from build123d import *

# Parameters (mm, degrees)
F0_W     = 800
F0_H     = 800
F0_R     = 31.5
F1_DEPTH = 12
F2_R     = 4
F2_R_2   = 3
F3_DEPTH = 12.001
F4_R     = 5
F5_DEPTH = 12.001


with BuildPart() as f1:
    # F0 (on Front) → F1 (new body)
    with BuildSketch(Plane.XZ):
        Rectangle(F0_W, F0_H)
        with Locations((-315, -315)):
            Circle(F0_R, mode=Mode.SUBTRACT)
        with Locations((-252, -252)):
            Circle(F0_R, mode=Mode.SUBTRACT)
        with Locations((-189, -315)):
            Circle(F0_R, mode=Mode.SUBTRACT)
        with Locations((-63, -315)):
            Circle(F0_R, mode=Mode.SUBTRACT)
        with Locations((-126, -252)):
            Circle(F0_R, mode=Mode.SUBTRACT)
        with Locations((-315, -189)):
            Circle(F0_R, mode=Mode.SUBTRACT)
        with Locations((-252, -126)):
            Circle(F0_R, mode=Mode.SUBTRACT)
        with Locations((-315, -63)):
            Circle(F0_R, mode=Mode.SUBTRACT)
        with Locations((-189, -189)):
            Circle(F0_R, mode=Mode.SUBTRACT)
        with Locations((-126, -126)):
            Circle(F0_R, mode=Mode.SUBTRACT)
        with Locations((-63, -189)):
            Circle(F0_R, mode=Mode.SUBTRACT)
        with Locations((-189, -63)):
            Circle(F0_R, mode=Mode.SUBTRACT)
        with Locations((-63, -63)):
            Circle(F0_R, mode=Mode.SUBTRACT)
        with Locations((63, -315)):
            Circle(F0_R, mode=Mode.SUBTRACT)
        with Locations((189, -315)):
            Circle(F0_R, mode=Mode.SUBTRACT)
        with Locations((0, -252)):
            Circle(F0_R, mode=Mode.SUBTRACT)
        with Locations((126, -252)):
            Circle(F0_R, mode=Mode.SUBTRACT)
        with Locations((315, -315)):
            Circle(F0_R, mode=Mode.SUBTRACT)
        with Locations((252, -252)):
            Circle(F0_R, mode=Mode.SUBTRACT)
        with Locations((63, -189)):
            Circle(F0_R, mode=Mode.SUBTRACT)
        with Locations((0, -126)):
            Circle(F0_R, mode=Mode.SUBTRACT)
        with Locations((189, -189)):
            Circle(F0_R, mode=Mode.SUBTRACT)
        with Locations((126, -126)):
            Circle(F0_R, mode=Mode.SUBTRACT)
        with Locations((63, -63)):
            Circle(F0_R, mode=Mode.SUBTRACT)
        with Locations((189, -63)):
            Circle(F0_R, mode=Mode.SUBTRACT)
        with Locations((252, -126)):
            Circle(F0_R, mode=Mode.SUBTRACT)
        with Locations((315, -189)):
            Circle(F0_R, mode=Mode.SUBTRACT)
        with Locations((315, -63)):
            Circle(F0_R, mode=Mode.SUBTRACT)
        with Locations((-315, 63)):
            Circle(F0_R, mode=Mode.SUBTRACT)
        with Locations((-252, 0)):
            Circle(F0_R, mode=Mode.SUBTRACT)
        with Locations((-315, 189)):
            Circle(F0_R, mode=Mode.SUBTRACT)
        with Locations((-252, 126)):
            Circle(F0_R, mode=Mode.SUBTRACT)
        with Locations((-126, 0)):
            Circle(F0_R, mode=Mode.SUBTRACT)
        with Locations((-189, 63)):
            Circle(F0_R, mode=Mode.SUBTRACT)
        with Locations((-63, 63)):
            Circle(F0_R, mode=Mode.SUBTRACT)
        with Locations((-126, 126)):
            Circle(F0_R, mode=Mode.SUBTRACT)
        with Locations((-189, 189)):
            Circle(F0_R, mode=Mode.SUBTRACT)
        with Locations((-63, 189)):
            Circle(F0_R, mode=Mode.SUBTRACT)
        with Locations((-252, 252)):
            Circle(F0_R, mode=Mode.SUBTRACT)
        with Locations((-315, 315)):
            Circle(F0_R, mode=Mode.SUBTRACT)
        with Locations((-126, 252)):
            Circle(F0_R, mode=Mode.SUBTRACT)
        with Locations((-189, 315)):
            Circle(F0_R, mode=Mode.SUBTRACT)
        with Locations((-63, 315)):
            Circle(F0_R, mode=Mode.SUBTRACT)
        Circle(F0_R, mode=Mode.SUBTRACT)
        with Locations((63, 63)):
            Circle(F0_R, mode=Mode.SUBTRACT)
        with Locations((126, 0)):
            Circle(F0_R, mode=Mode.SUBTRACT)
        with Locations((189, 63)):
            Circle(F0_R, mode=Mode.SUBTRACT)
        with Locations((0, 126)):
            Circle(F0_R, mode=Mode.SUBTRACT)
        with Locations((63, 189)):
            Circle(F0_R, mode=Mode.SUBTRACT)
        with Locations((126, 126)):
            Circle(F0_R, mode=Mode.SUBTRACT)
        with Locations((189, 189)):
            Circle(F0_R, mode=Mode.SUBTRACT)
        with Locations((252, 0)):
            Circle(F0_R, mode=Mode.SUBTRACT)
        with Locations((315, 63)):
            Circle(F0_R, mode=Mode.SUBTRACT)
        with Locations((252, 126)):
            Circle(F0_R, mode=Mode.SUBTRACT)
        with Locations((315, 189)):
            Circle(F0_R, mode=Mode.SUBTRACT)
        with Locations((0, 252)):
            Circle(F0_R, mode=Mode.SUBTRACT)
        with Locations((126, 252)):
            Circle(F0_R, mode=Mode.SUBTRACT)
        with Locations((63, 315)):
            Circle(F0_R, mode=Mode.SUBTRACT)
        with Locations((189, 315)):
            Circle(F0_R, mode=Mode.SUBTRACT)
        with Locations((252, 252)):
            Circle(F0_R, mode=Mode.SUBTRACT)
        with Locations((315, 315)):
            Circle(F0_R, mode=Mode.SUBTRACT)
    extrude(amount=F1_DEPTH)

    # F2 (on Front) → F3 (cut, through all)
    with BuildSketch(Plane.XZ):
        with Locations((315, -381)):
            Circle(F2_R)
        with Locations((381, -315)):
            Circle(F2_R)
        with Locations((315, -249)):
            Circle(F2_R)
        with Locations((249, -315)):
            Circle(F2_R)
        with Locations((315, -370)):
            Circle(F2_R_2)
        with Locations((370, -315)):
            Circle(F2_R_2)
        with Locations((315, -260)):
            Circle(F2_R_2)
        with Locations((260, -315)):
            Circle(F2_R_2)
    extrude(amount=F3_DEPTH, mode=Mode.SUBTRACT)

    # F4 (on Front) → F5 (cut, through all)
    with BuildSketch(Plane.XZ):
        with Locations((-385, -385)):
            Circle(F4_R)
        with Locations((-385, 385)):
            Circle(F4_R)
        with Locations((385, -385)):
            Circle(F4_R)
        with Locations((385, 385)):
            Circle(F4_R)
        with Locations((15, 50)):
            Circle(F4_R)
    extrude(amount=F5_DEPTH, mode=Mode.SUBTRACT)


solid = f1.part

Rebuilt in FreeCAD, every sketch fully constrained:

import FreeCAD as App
import Part
import Sketcher

V = App.Vector

doc = App.newDocument("Part")
body = doc.addObject("PartDesign::Body", "Body")

# Sketch on XZ plane
sketch1 = doc.addObject("Sketcher::SketchObject", "Sketch")
body.addObject(sketch1)
sketch1.AttachmentSupport = (doc.XZ_Plane, [""])
sketch1.MapMode = "FlatFace"
sketch1.addGeometry([
    Part.LineSegment(V(-400, 400, 0), V(-400, -400, 0)),  # 0
    Part.LineSegment(V(-400, -400, 0), V(400, -400, 0)),  # 1
    Part.LineSegment(V(400, -400, 0), V(400, 400, 0)),  # 2
    Part.LineSegment(V(400, 400, 0), V(-400, 400, 0)),  # 3
    Part.Circle(V(-315, -315, 0), V(0, 0, 1), 32),  # 4
    Part.Circle(V(-189, -315, 0), V(0, 0, 1), 32),  # 5
    Part.Circle(V(-315, -189, 0), V(0, 0, 1), 32),  # 6
    Part.Circle(V(-252, -252, 0), V(0, 0, 1), 32),  # 7
    Part.Circle(V(-189, -189, 0), V(0, 0, 1), 32),  # 8
    Part.Circle(V(-63, -315, 0), V(0, 0, 1), 32),  # 9
    Part.Circle(V(-126, -252, 0), V(0, 0, 1), 32),  # 10
    Part.Circle(V(-63, -189, 0), V(0, 0, 1), 32),  # 11
    Part.Circle(V(-252, -126, 0), V(0, 0, 1), 32),  # 12
    Part.Circle(V(-315, -63, 0), V(0, 0, 1), 32),  # 13
    Part.Circle(V(-189, -63, 0), V(0, 0, 1), 32),  # 14
    Part.Circle(V(-126, -126, 0), V(0, 0, 1), 32),  # 15
    Part.Circle(V(-63, -63, 0), V(0, 0, 1), 32),  # 16
    Part.Circle(V(63, -315, 0), V(0, 0, 1), 32),  # 17
    Part.Circle(V(0, -252, 0), V(0, 0, 1), 32),  # 18
    Part.Circle(V(63, -189, 0), V(0, 0, 1), 32),  # 19
    Part.Circle(V(126, -252, 0), V(0, 0, 1), 32),  # 20
    Part.Circle(V(189, -315, 0), V(0, 0, 1), 32),  # 21
    Part.Circle(V(315, -315, 0), V(0, 0, 1), 32),  # 22
    Part.Circle(V(252, -252, 0), V(0, 0, 1), 32),  # 23
    Part.Circle(V(189, -189, 0), V(0, 0, 1), 32),  # 24
    Part.Circle(V(315, -189, 0), V(0, 0, 1), 32),  # 25
    Part.Circle(V(0, -126, 0), V(0, 0, 1), 32),  # 26
    Part.Circle(V(126, -126, 0), V(0, 0, 1), 32),  # 27
    Part.Circle(V(63, -63, 0), V(0, 0, 1), 32),  # 28
    Part.Circle(V(252, -126, 0), V(0, 0, 1), 32),  # 29
    Part.Circle(V(189, -63, 0), V(0, 0, 1), 32),  # 30
    Part.Circle(V(315, -63, 0), V(0, 0, 1), 32),  # 31
    Part.Circle(V(-315, 63, 0), V(0, 0, 1), 32),  # 32
    Part.Circle(V(-252, 0, 0), V(0, 0, 1), 32),  # 33
    Part.Circle(V(-189, 63, 0), V(0, 0, 1), 32),  # 34
    Part.Circle(V(-252, 126, 0), V(0, 0, 1), 32),  # 35
    Part.Circle(V(-126, 0, 0), V(0, 0, 1), 32),  # 36
    Part.Circle(V(-63, 63, 0), V(0, 0, 1), 32),  # 37
    Part.Circle(V(-126, 126, 0), V(0, 0, 1), 32),  # 38
    Part.Circle(V(-315, 189, 0), V(0, 0, 1), 32),  # 39
    Part.Circle(V(-189, 189, 0), V(0, 0, 1), 32),  # 40
    Part.Circle(V(-252, 252, 0), V(0, 0, 1), 32),  # 41
    Part.Circle(V(-315, 315, 0), V(0, 0, 1), 32),  # 42
    Part.Circle(V(-189, 315, 0), V(0, 0, 1), 32),  # 43
    Part.Circle(V(-126, 252, 0), V(0, 0, 1), 32),  # 44
    Part.Circle(V(-63, 189, 0), V(0, 0, 1), 32),  # 45
    Part.Circle(V(-63, 315, 0), V(0, 0, 1), 32),  # 46
    Part.Circle(V(0, 0, 0), V(0, 0, 1), 32),  # 47
    Part.Circle(V(63, 63, 0), V(0, 0, 1), 32),  # 48
    Part.Circle(V(126, 0, 0), V(0, 0, 1), 32),  # 49
    Part.Circle(V(0, 126, 0), V(0, 0, 1), 32),  # 50
    Part.Circle(V(126, 126, 0), V(0, 0, 1), 32),  # 51
    Part.Circle(V(252, 0, 0), V(0, 0, 1), 32),  # 52
    Part.Circle(V(189, 63, 0), V(0, 0, 1), 32),  # 53
    Part.Circle(V(315, 63, 0), V(0, 0, 1), 32),  # 54
    Part.Circle(V(252, 126, 0), V(0, 0, 1), 32),  # 55
    Part.Circle(V(63, 189, 0), V(0, 0, 1), 32),  # 56
    Part.Circle(V(0, 252, 0), V(0, 0, 1), 32),  # 57
    Part.Circle(V(126, 252, 0), V(0, 0, 1), 32),  # 58
    Part.Circle(V(63, 315, 0), V(0, 0, 1), 32),  # 59
    Part.Circle(V(189, 189, 0), V(0, 0, 1), 32),  # 60
    Part.Circle(V(252, 252, 0), V(0, 0, 1), 32),  # 61
    Part.Circle(V(315, 189, 0), V(0, 0, 1), 32),  # 62
    Part.Circle(V(189, 315, 0), V(0, 0, 1), 32),  # 63
    Part.Circle(V(315, 315, 0), V(0, 0, 1), 32),  # 64
], False)
sketch1.addConstraint([
    Sketcher.Constraint("Coincident", 0, 2, 1, 1),
    Sketcher.Constraint("Coincident", 1, 2, 2, 1),
    Sketcher.Constraint("Coincident", 2, 2, 3, 1),
    Sketcher.Constraint("Coincident", 3, 2, 0, 1),
    Sketcher.Constraint("Vertical", 0),
    Sketcher.Constraint("Horizontal", 1),
    Sketcher.Constraint("Vertical", 2),
    Sketcher.Constraint("Horizontal", 3),
    Sketcher.Constraint("Coincident", 47, 3, -1, 1),
    Sketcher.Constraint("Equal", 4, 5),
    Sketcher.Constraint("Equal", 5, 6),
    Sketcher.Constraint("Equal", 6, 7),
    Sketcher.Constraint("Equal", 7, 8),
    Sketcher.Constraint("Equal", 8, 9),
    Sketcher.Constraint("Equal", 9, 10),
    Sketcher.Constraint("Equal", 10, 11),
    Sketcher.Constraint("Equal", 11, 12),
    Sketcher.Constraint("Equal", 12, 13),
    Sketcher.Constraint("Equal", 13, 14),
    Sketcher.Constraint("Equal", 14, 15),
    Sketcher.Constraint("Equal", 15, 16),
    Sketcher.Constraint("Equal", 16, 17),
    Sketcher.Constraint("Equal", 17, 18),
    Sketcher.Constraint("Equal", 18, 19),
    Sketcher.Constraint("Equal", 19, 20),
    Sketcher.Constraint("Equal", 20, 21),
    Sketcher.Constraint("Equal", 21, 22),
    Sketcher.Constraint("Equal", 22, 23),
    Sketcher.Constraint("Equal", 23, 24),
    Sketcher.Constraint("Equal", 24, 25),
    Sketcher.Constraint("Equal", 25, 26),
    Sketcher.Constraint("Equal", 26, 27),
    Sketcher.Constraint("Equal", 27, 28),
    Sketcher.Constraint("Equal", 28, 29),
    Sketcher.Constraint("Equal", 29, 30),
    Sketcher.Constraint("Equal", 30, 31),
    Sketcher.Constraint("Equal", 31, 32),
    Sketcher.Constraint("Equal", 32, 33),
    Sketcher.Constraint("Equal", 33, 34),
    Sketcher.Constraint("Equal", 34, 35),
    Sketcher.Constraint("Equal", 35, 36),
    Sketcher.Constraint("Equal", 36, 37),
    Sketcher.Constraint("Equal", 37, 38),
    Sketcher.Constraint("Equal", 38, 39),
    Sketcher.Constraint("Equal", 39, 40),
    Sketcher.Constraint("Equal", 40, 41),
    Sketcher.Constraint("Equal", 41, 42),
    Sketcher.Constraint("Equal", 42, 43),
    Sketcher.Constraint("Equal", 43, 44),
    Sketcher.Constraint("Equal", 44, 45),
    Sketcher.Constraint("Equal", 45, 46),
    Sketcher.Constraint("Equal", 46, 47),
    Sketcher.Constraint("Equal", 47, 48),
    Sketcher.Constraint("Equal", 48, 49),
    Sketcher.Constraint("Equal", 49, 50),
    Sketcher.Constraint("Equal", 50, 51),
    Sketcher.Constraint("Equal", 51, 52),
    Sketcher.Constraint("Equal", 52, 53),
    Sketcher.Constraint("Equal", 53, 54),
    Sketcher.Constraint("Equal", 54, 55),
    Sketcher.Constraint("Equal", 55, 56),
    Sketcher.Constraint("Equal", 56, 57),
    Sketcher.Constraint("Equal", 57, 58),
    Sketcher.Constraint("Equal", 58, 59),
    Sketcher.Constraint("Equal", 59, 60),
    Sketcher.Constraint("Equal", 60, 61),
    Sketcher.Constraint("Equal", 61, 62),
    Sketcher.Constraint("Equal", 62, 63),
    Sketcher.Constraint("Equal", 63, 64),
    Sketcher.Constraint("Symmetric", 31, 3, 32, 3, -1, 1),
    Sketcher.Constraint("Symmetric", 30, 3, 34, 3, -1, 1),
    Sketcher.Constraint("Symmetric", 29, 3, 35, 3, -1, 1),
    Sketcher.Constraint("Symmetric", 28, 3, 37, 3, -1, 1),
    Sketcher.Constraint("Symmetric", 27, 3, 38, 3, -1, 1),
    Sketcher.Constraint("Symmetric", 25, 3, 39, 3, -1, 1),
    Sketcher.Constraint("Symmetric", 24, 3, 40, 3, -1, 1),
    Sketcher.Constraint("Symmetric", 23, 3, 41, 3, -1, 1),
    Sketcher.Constraint("Symmetric", 22, 3, 42, 3, -1, 1),
    Sketcher.Constraint("Symmetric", 21, 3, 43, 3, -1, 1),
    Sketcher.Constraint("Symmetric", 20, 3, 44, 3, -1, 1),
    Sketcher.Constraint("Symmetric", 19, 3, 45, 3, -1, 1),
    Sketcher.Constraint("Symmetric", 17, 3, 46, 3, -1, 1),
    Sketcher.Constraint("Symmetric", 16, 3, 48, 3, -1, 1),
    Sketcher.Constraint("Symmetric", 36, 3, 49, 3, -1, 1),
    Sketcher.Constraint("Symmetric", 26, 3, 50, 3, -1, 1),
    Sketcher.Constraint("Symmetric", 15, 3, 51, 3, -1, 1),
    Sketcher.Constraint("Symmetric", 33, 3, 52, 3, -1, 1),
    Sketcher.Constraint("Symmetric", 14, 3, 53, 3, -1, 1),
    Sketcher.Constraint("Symmetric", 13, 3, 54, 3, -1, 1),
    Sketcher.Constraint("Symmetric", 12, 3, 55, 3, -1, 1),
    Sketcher.Constraint("Symmetric", 11, 3, 56, 3, -1, 1),
    Sketcher.Constraint("Symmetric", 18, 3, 57, 3, -1, 1),
    Sketcher.Constraint("Symmetric", 10, 3, 58, 3, -1, 1),
    Sketcher.Constraint("Symmetric", 9, 3, 59, 3, -1, 1),
    Sketcher.Constraint("Symmetric", 8, 3, 60, 3, -1, 1),
    Sketcher.Constraint("Symmetric", 7, 3, 61, 3, -1, 1),
    Sketcher.Constraint("Symmetric", 6, 3, 62, 3, -1, 1),
    Sketcher.Constraint("Symmetric", 5, 3, 63, 3, -1, 1),
    Sketcher.Constraint("Symmetric", 4, 3, 64, 3, -1, 1),
    Sketcher.Constraint("Symmetric", 0, 2, 2, 2, -1, 1),
    Sketcher.Constraint("Symmetric", 9, 3, 17, 3, -2),
    Sketcher.Constraint("Symmetric", 11, 3, 19, 3, -2),
    Sketcher.Constraint("Symmetric", 10, 3, 20, 3, -2),
    Sketcher.Constraint("Symmetric", 5, 3, 21, 3, -2),
    Sketcher.Constraint("Symmetric", 4, 3, 22, 3, -2),
    Sketcher.Constraint("Symmetric", 7, 3, 23, 3, -2),
    Sketcher.Constraint("Symmetric", 8, 3, 24, 3, -2),
    Sketcher.Constraint("Symmetric", 6, 3, 25, 3, -2),
    Sketcher.Constraint("Symmetric", 15, 3, 27, 3, -2),
    Sketcher.Constraint("Symmetric", 16, 3, 28, 3, -2),
    Sketcher.Constraint("Symmetric", 12, 3, 29, 3, -2),
    Sketcher.Constraint("Symmetric", 14, 3, 30, 3, -2),
    Sketcher.Constraint("Symmetric", 13, 3, 31, 3, -2),
    Sketcher.Constraint("PointOnObject", 18, 3, -2),
    Sketcher.Constraint("PointOnObject", 26, 3, -2),
    Sketcher.Constraint("PointOnObject", 33, 3, -1),
    Sketcher.Constraint("PointOnObject", 36, 3, -1),
    Sketcher.Constraint("Horizontal", 4, 3, 5, 3),
    Sketcher.Constraint("Horizontal", 6, 3, 8, 3),
    Sketcher.Constraint("Horizontal", 5, 3, 9, 3),
    Sketcher.Constraint("Horizontal", 7, 3, 10, 3),
    Sketcher.Constraint("Horizontal", 8, 3, 11, 3),
    Sketcher.Constraint("Horizontal", 13, 3, 14, 3),
    Sketcher.Constraint("Horizontal", 12, 3, 15, 3),
    Sketcher.Constraint("Horizontal", 14, 3, 16, 3),
    Sketcher.Constraint("Horizontal", 10, 3, 18, 3),
    Sketcher.Constraint("Horizontal", 15, 3, 26, 3),
    Sketcher.Constraint("Vertical", 4, 3, 6, 3),
    Sketcher.Constraint("Vertical", 5, 3, 8, 3),
    Sketcher.Constraint("Vertical", 9, 3, 11, 3),
    Sketcher.Constraint("Vertical", 7, 3, 12, 3),
    Sketcher.Constraint("Vertical", 6, 3, 13, 3),
    Sketcher.Constraint("Vertical", 8, 3, 14, 3),
    Sketcher.Constraint("Vertical", 10, 3, 15, 3),
    Sketcher.Constraint("Vertical", 11, 3, 16, 3),
    Sketcher.Constraint("Vertical", 12, 3, 33, 3),
    Sketcher.Constraint("Vertical", 15, 3, 36, 3),
    Sketcher.Constraint("Equal", 3, 0),
    Sketcher.Constraint("Diameter", 4, 63.0),
    Sketcher.Constraint("DistanceX", 1, 1, 1, 2, 800.0),
    Sketcher.Constraint("DistanceX", 4, 3, -1, 1, 315.0),
    Sketcher.Constraint("DistanceY", 4, 3, -1, 1, 315.0),
    Sketcher.Constraint("DistanceX", 5, 3, -1, 1, 189.0),
    Sketcher.Constraint("DistanceY", 6, 3, -1, 1, 189.0),
    Sketcher.Constraint("DistanceX", 7, 3, -1, 1, 252.0),
    Sketcher.Constraint("DistanceY", 7, 3, -1, 1, 252.0),
    Sketcher.Constraint("DistanceX", 9, 3, -1, 1, 63.0),
    Sketcher.Constraint("DistanceX", 10, 3, -1, 1, 126.0),
    Sketcher.Constraint("DistanceY", 12, 3, -1, 1, 126.0),
    Sketcher.Constraint("DistanceY", 13, 3, -1, 1, 63.0),
])
pad1 = doc.addObject("PartDesign::Pad", "Pad")
body.addObject(pad1)
pad1.Profile = sketch1
pad1.Length = 12

# Sketch on XZ plane
sketch2 = doc.addObject("Sketcher::SketchObject", "Sketch001")
body.addObject(sketch2)
sketch2.AttachmentSupport = (doc.XZ_Plane, [""])
sketch2.MapMode = "FlatFace"
sketch2.addGeometry([
    Part.Circle(V(315, -381, 0), V(0, 0, 1), 4),  # 0
    Part.Circle(V(381, -315, 0), V(0, 0, 1), 4),  # 1
    Part.Circle(V(315, -249, 0), V(0, 0, 1), 4),  # 2
    Part.Circle(V(249, -315, 0), V(0, 0, 1), 4),  # 3
    Part.Circle(V(315, -370, 0), V(0, 0, 1), 3),  # 4
    Part.Circle(V(370, -315, 0), V(0, 0, 1), 3),  # 5
    Part.Circle(V(315, -260, 0), V(0, 0, 1), 3),  # 6
    Part.Circle(V(260, -315, 0), V(0, 0, 1), 3),  # 7
], False)
sketch2.addConstraint([
    Sketcher.Constraint("Equal", 0, 1),
    Sketcher.Constraint("Equal", 1, 2),
    Sketcher.Constraint("Equal", 2, 3),
    Sketcher.Constraint("Equal", 4, 5),
    Sketcher.Constraint("Equal", 5, 6),
    Sketcher.Constraint("Equal", 6, 7),
    Sketcher.Constraint("Horizontal", 1, 3, 3, 3),
    Sketcher.Constraint("Horizontal", 3, 3, 5, 3),
    Sketcher.Constraint("Horizontal", 5, 3, 7, 3),
    Sketcher.Constraint("Vertical", 0, 3, 2, 3),
    Sketcher.Constraint("Vertical", 2, 3, 4, 3),
    Sketcher.Constraint("Vertical", 4, 3, 6, 3),
    Sketcher.Constraint("Diameter", 0, 8.0),
    Sketcher.Constraint("Diameter", 4, 6.0),
    Sketcher.Constraint("DistanceX", -1, 1, 0, 3, 315.0),
    Sketcher.Constraint("DistanceY", 0, 3, -1, 1, 381.0),
    Sketcher.Constraint("DistanceX", -1, 1, 1, 3, 381.0),
    Sketcher.Constraint("DistanceY", 1, 3, -1, 1, 315.0),
    Sketcher.Constraint("DistanceY", 2, 3, -1, 1, 249.0),
    Sketcher.Constraint("DistanceX", -1, 1, 3, 3, 249.0),
    Sketcher.Constraint("DistanceY", 4, 3, -1, 1, 370.0),
    Sketcher.Constraint("DistanceX", -1, 1, 5, 3, 370.0),
    Sketcher.Constraint("DistanceY", 6, 3, -1, 1, 260.0),
    Sketcher.Constraint("DistanceX", -1, 1, 7, 3, 260.0),
])
pocket1 = doc.addObject("PartDesign::Pocket", "Pocket")
body.addObject(pocket1)
pocket1.Profile = sketch2
pocket1.Type = "ThroughAll"
pocket1.Reversed = True

# Sketch on XZ plane
sketch3 = doc.addObject("Sketcher::SketchObject", "Sketch002")
body.addObject(sketch3)
sketch3.AttachmentSupport = (doc.XZ_Plane, [""])
sketch3.MapMode = "FlatFace"
sketch3.addGeometry([
    Part.Circle(V(-385, -385, 0), V(0, 0, 1), 5),  # 0
    Part.Circle(V(-385, 385, 0), V(0, 0, 1), 5),  # 1
    Part.Circle(V(385, -385, 0), V(0, 0, 1), 5),  # 2
    Part.Circle(V(385, 385, 0), V(0, 0, 1), 5),  # 3
    Part.Circle(V(15, 50, 0), V(0, 0, 1), 5),  # 4
], False)
sketch3.addConstraint([
    Sketcher.Constraint("Equal", 0, 1),
    Sketcher.Constraint("Equal", 1, 2),
    Sketcher.Constraint("Equal", 2, 3),
    Sketcher.Constraint("Equal", 3, 4),
    Sketcher.Constraint("Symmetric", 1, 3, 2, 3, -1, 1),
    Sketcher.Constraint("Symmetric", 0, 3, 3, 3, -1, 1),
    Sketcher.Constraint("Symmetric", 0, 3, 2, 3, -2),
    Sketcher.Constraint("Diameter", 0, 10.0),
    Sketcher.Constraint("DistanceX", 0, 3, -1, 1, 385.0),
    Sketcher.Constraint("DistanceY", 0, 3, -1, 1, 385.0),
    Sketcher.Constraint("DistanceX", -1, 1, 4, 3, 15.0),
    Sketcher.Constraint("DistanceY", -1, 1, 4, 3, 50.0),
])
pocket2 = doc.addObject("PartDesign::Pocket", "Pocket001")
body.addObject(pocket2)
pocket2.Profile = sketch3
pocket2.Type = "ThroughAll"
pocket2.Reversed = True

doc.recompute()
